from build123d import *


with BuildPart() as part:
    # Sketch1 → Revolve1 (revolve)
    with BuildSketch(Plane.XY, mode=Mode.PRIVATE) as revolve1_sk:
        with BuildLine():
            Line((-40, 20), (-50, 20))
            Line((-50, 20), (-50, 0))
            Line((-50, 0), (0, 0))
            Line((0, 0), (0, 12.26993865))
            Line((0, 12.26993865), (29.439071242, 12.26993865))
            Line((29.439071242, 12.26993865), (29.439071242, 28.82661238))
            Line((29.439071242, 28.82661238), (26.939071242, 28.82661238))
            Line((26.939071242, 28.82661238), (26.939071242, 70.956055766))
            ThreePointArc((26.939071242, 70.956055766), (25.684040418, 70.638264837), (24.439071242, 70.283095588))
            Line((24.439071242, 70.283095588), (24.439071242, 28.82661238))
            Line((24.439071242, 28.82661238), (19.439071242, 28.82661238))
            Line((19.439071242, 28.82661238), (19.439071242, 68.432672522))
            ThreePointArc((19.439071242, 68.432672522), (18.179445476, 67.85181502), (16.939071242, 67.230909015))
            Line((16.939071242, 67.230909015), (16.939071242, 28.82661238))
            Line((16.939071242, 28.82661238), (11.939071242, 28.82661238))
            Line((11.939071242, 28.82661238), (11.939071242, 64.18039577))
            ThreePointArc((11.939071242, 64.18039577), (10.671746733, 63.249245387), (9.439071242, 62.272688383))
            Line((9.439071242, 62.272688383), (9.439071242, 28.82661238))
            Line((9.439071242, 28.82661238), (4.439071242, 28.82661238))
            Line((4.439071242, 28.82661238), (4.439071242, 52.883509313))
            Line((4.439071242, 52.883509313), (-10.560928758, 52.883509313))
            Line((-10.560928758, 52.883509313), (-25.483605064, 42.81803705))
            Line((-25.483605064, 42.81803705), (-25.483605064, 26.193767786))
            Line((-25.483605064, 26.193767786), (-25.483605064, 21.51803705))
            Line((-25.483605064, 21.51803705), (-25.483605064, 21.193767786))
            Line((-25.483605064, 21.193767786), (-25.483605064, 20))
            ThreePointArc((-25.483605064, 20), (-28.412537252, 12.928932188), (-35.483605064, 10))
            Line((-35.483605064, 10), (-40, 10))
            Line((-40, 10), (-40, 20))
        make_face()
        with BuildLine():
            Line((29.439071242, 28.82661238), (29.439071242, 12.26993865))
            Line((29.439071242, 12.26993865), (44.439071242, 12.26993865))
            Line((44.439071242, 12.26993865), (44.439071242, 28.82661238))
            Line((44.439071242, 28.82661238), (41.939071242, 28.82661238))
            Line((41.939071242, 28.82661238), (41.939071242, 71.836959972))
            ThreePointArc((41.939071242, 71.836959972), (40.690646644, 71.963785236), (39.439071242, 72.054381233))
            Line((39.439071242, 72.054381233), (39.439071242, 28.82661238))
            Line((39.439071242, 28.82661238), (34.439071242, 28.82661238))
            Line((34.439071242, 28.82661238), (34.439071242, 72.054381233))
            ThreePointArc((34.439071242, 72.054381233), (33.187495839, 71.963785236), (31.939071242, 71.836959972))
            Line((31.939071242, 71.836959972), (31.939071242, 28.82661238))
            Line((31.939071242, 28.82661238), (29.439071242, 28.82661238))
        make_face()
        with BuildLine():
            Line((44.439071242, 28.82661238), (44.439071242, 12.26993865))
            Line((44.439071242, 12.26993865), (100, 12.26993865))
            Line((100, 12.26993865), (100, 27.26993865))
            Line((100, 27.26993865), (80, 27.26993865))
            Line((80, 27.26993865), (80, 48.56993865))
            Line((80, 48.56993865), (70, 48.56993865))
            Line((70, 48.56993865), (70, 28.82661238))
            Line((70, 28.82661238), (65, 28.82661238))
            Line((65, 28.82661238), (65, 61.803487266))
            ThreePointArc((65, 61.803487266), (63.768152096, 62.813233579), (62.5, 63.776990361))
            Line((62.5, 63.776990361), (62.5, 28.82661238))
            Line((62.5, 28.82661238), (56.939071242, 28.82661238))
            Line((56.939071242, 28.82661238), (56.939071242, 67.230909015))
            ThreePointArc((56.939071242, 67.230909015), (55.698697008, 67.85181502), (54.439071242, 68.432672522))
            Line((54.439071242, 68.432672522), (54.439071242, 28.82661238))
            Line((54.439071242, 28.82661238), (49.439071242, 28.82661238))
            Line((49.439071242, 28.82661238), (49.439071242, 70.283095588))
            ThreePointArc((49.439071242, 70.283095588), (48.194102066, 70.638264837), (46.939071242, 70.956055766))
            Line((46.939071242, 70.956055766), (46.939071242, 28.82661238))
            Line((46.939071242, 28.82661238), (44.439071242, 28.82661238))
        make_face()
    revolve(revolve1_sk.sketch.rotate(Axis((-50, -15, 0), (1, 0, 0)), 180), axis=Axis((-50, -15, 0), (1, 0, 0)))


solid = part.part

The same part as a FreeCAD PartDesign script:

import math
import FreeCAD as App
import Part
import Sketcher
from FreeCAD import Vector
Q = App.Units.Quantity

doc = App.newDocument("Part")
params = doc.addObject("Spreadsheet::Sheet", "Params")
for row, (alias, value) in enumerate([
    ("sketch1_radius", "10 mm"),
    ("sketch1_radius2", "43.3 mm"),
    ("sketch1_width", "50 mm"),
    ("sketch1_width2", "100 mm"),
    ("sketch1_width3", "20 mm"),
    ("revolution_angle", "360 deg"),
], start=1):
    params.set(f"A{row}", alias)
    params.set(f"B{row}", "=" + value)
    params.setAlias(f"B{row}", alias)

body = doc.addObject("PartDesign::Body", "Body")

sketch1 = body.newObject("Sketcher::SketchObject", "Sketch")
sketch1.AttachmentSupport = (doc.getObject("XY_Plane"), [""])
sketch1.MapMode = "FlatFace"
sketch1.addGeometry(Part.LineSegment(Vector(-40, 20, 0), Vector(-50, 20, 0)), False)
sketch1.addGeometry(Part.LineSegment(Vector(-50, 20, 0), Vector(-50, 0, 0)), False)
sketch1.addGeometry(Part.LineSegment(Vector(-50, 0, 0), Vector(0, 0, 0)), False)
sketch1.addGeometry(Part.LineSegment(Vector(0, 0, 0), Vector(0, 12.3, 0)), False)
sketch1.addGeometry(Part.LineSegment(Vector(0, 12.3, 0), Vector(100, 12.3, 0)), False)
sketch1.addGeometry(Part.LineSegment(Vector(100, 12.3, 0), Vector(100, 27.3, 0)), False)
sketch1.addGeometry(Part.LineSegment(Vector(100, 27.3, 0), Vector(80, 27.3, 0)), False)
sketch1.addGeometry(Part.LineSegment(Vector(80, 27.3, 0), Vector(80, 48.6, 0)), False)
sketch1.addGeometry(Part.LineSegment(Vector(80, 48.6, 0), Vector(70, 48.6, 0)), False)
sketch1.addGeometry(Part.LineSegment(Vector(70, 48.6, 0), Vector(70, 28.8, 0)), False)
sketch1.addGeometry(Part.LineSegment(Vector(70, 28.8, 0), Vector(65, 28.8, 0)), False)
sketch1.addGeometry(Part.LineSegment(Vector(65, 28.8, 0), Vector(65, 61.8, 0)), False)
sketch1.addGeometry(Part.ArcOfCircle(Part.Circle(Vector(36.9, 28.8, 0), Vector(0, 0, 1), 43.3), math.radians(49.6), math.radians(53.82)), False)
sketch1.addGeometry(Part.LineSegment(Vector(62.5, 63.8, 0), Vector(62.5, 28.8, 0)), False)
sketch1.addGeometry(Part.LineSegment(Vector(62.5, 28.8, 0), Vector(56.9, 28.8, 0)), False)
sketch1.addGeometry(Part.LineSegment(Vector(56.9, 28.8, 0), Vector(56.9, 67.2, 0)), False)
sketch1.addGeometry(Part.ArcOfCircle(Part.Circle(Vector(36.9, 28.8, 0), Vector(0, 0, 1), 43.3), math.radians(62.49), math.radians(66.16)), False)
sketch1.addGeometry(Part.LineSegment(Vector(54.4, 68.4, 0), Vector(54.4, 28.8, 0)), False)
sketch1.addGeometry(Part.LineSegment(Vector(54.4, 28.8, 0), Vector(49.4, 28.8, 0)), False)
sketch1.addGeometry(Part.LineSegment(Vector(49.4, 28.8, 0), Vector(49.4, 70.3, 0)), False)
sketch1.addGeometry(Part.ArcOfCircle(Part.Circle(Vector(36.9, 28.8, 0), Vector(0, 0, 1), 43.3), math.radians(73.22), math.radians(76.65)), False)
sketch1.addGeometry(Part.LineSegment(Vector(46.9, 71, 0), Vector(46.9, 28.8, 0)), False)
sketch1.addGeometry(Part.LineSegment(Vector(46.9, 28.8, 0), Vector(41.9, 28.8, 0)), False)
sketch1.addGeometry(Part.LineSegment(Vector(41.9, 28.8, 0), Vector(41.9, 71.8, 0)), False)
sketch1.addGeometry(Part.ArcOfCircle(Part.Circle(Vector(36.9, 28.8, 0), Vector(0, 0, 1), 43.3), math.radians(83.37), math.radians(86.69)), False)
sketch1.addGeometry(Part.LineSegment(Vector(39.4, 72.1, 0), Vector(39.4, 28.8, 0)), False)
sketch1.addGeometry(Part.LineSegment(Vector(39.4, 28.8, 0), Vector(34.4, 28.8, 0)), False)
sketch1.addGeometry(Part.LineSegment(Vector(34.4, 28.8, 0), Vector(34.4, 72.1, 0)), False)
sketch1.addGeometry(Part.ArcOfCircle(Part.Circle(Vector(36.9, 28.8, 0), Vector(0, 0, 1), 43.3), math.radians(93.31), math.radians(96.63)), False)
sketch1.addGeometry(Part.LineSegment(Vector(31.9, 71.8, 0), Vector(31.9, 28.8, 0)), False)
sketch1.addGeometry(Part.LineSegment(Vector(31.9, 28.8, 0), Vector(26.9, 28.8, 0)), False)
sketch1.addGeometry(Part.LineSegment(Vector(26.9, 28.8, 0), Vector(26.9, 71, 0)), False)
sketch1.addGeometry(Part.ArcOfCircle(Part.Circle(Vector(36.9, 28.8, 0), Vector(0, 0, 1), 43.3), math.radians(103.35), math.radians(106.78)), False)
sketch1.addGeometry(Part.LineSegment(Vector(24.4, 70.3, 0), Vector(24.4, 28.8, 0)), False)
sketch1.addGeometry(Part.LineSegment(Vector(24.4, 28.8, 0), Vector(19.4, 28.8, 0)), False)
sketch1.addGeometry(Part.LineSegment(Vector(19.4, 28.8, 0), Vector(19.4, 68.4, 0)), False)
sketch1.addGeometry(Part.ArcOfCircle(Part.Circle(Vector(36.9, 28.8, 0), Vector(0, 0, 1), 43.3), math.radians(113.84), math.radians(117.51)), False)
sketch1.addGeometry(Part.LineSegment(Vector(16.9, 67.2, 0), Vector(16.9, 28.8, 0)), False)
sketch1.addGeometry(Part.LineSegment(Vector(16.9, 28.8, 0), Vector(11.9, 28.8, 0)), False)
sketch1.addGeometry(Part.LineSegment(Vector(11.9, 28.8, 0), Vector(11.9, 64.2, 0)), False)
sketch1.addGeometry(Part.ArcOfCircle(Part.Circle(Vector(36.9, 28.8, 0), Vector(0, 0, 1), 43.3), math.radians(125.27), math.radians(129.43)), False)
sketch1.addGeometry(Part.LineSegment(Vector(9.4, 62.3, 0), Vector(9.4, 28.8, 0)), False)
sketch1.addGeometry(Part.LineSegment(Vector(9.4, 28.8, 0), Vector(4.4, 28.8, 0)), False)
sketch1.addGeometry(Part.LineSegment(Vector(4.4, 28.8, 0), Vector(4.4, 52.9, 0)), False)
sketch1.addGeometry(Part.LineSegment(Vector(4.4, 52.9, 0), Vector(-10.6, 52.9, 0)), False)
sketch1.addGeometry(Part.LineSegment(Vector(-10.6, 52.9, 0), Vector(-25.5, 42.8, 0)), False)
sketch1.addGeometry(Part.LineSegment(Vector(-25.5, 42.8, 0), Vector(-25.5, 20, 0)), False)
sketch1.addGeometry(Part.ArcOfCircle(Part.Circle(Vector(-35.5, 20, 0), Vector(0, 0, 1), 10), math.radians(-90), math.radians(0)), False)
sketch1.addGeometry(Part.LineSegment(Vector(-35.5, 10, 0), Vector(-40, 10, 0)), False)
sketch1.addGeometry(Part.LineSegment(Vector(-40, 10, 0), Vector(-40, 20, 0)), False)
sketch1.addGeometry(Part.LineSegment(Vector(-50, -15, 0), Vector(100, -15, 0)), True)
sketch1.addConstraint(Sketcher.Constraint("Coincident", 0, 2, 1, 1))
sketch1.addConstraint(Sketcher.Constraint("Coincident", 1, 2, 2, 1))
sketch1.addConstraint(Sketcher.Constraint("Coincident", 2, 2, 3, 1))
sketch1.addConstraint(Sketcher.Constraint("Coincident", 3, 2, 4, 1))
sketch1.addConstraint(Sketcher.Constraint("Coincident", 4, 2, 5, 1))
sketch1.addConstraint(Sketcher.Constraint("Coincident", 5, 2, 6, 1))
sketch1.addConstraint(Sketcher.Constraint("Coincident", 6, 2, 7, 1))
sketch1.addConstraint(Sketcher.Constraint("Coincident", 7, 2, 8, 1))
sketch1.addConstraint(Sketcher.Constraint("Coincident", 8, 2, 9, 1))
sketch1.addConstraint(Sketcher.Constraint("Coincident", 9, 2, 10, 1))
sketch1.addConstraint(Sketcher.Constraint("Coincident", 10, 2, 11, 1))
sketch1.addConstraint(Sketcher.Constraint("Coincident", 11, 2, 12, 1))
sketch1.addConstraint(Sketcher.Constraint("Coincident", 12, 2, 13, 1))
sketch1.addConstraint(Sketcher.Constraint("Coincident", 13, 2, 14, 1))
sketch1.addConstraint(Sketcher.Constraint("Coincident", 14, 2, 15, 1))
sketch1.addConstraint(Sketcher.Constraint("Coincident", 15, 2, 16, 1))
sketch1.addConstraint(Sketcher.Constraint("Coincident", 16, 2, 17, 1))
sketch1.addConstraint(Sketcher.Constraint("Coincident", 17, 2, 18, 1))
sketch1.addConstraint(Sketcher.Constraint("Coincident", 18, 2, 19, 1))
sketch1.addConstraint(Sketcher.Constraint("Coincident", 19, 2, 20, 1))
sketch1.addConstraint(Sketcher.Constraint("Coincident", 20, 2, 21, 1))
sketch1.addConstraint(Sketcher.Constraint("Coincident", 21, 2, 22, 1))
sketch1.addConstraint(Sketcher.Constraint("Coincident", 22, 2, 23, 1))
sketch1.addConstraint(Sketcher.Constraint("Coincident", 23, 2, 24, 1))
sketch1.addConstraint(Sketcher.Constraint("Coincident", 24, 2, 25, 1))
sketch1.addConstraint(Sketcher.Constraint("Coincident", 25, 2, 26, 1))
sketch1.addConstraint(Sketcher.Constraint("Coincident", 26, 2, 27, 1))
sketch1.addConstraint(Sketcher.Constraint("Coincident", 27, 2, 28, 1))
sketch1.addConstraint(Sketcher.Constraint("Coincident", 28, 2, 29, 1))
sketch1.addConstraint(Sketcher.Constraint("Coincident", 29, 2, 30, 1))
sketch1.addConstraint(Sketcher.Constraint("Coincident", 30, 2, 31, 1))
sketch1.addConstraint(Sketcher.Constraint("Coincident", 31, 2, 32, 1))
sketch1.addConstraint(Sketcher.Constraint("Coincident", 32, 2, 33, 1))
sketch1.addConstraint(Sketcher.Constraint("Coincident", 33, 2, 34, 1))
sketch1.addConstraint(Sketcher.Constraint("Coincident", 34, 2, 35, 1))
sketch1.addConstraint(Sketcher.Constraint("Coincident", 35, 2, 36, 1))
sketch1.addConstraint(Sketcher.Constraint("Coincident", 36, 2, 37, 1))
sketch1.addConstraint(Sketcher.Constraint("Coincident", 37, 2, 38, 1))
sketch1.addConstraint(Sketcher.Constraint("Coincident", 38, 2, 39, 1))
sketch1.addConstraint(Sketcher.Constraint("Coincident", 39, 2, 40, 1))
sketch1.addConstraint(Sketcher.Constraint("Coincident", 40, 2, 41, 1))
sketch1.addConstraint(Sketcher.Constraint("Coincident", 41, 2, 42, 1))
sketch1.addConstraint(Sketcher.Constraint("Coincident", 42, 2, 43, 1))
sketch1.addConstraint(Sketcher.Constraint("Coincident", 43, 2, 44, 1))
sketch1.addConstraint(Sketcher.Constraint("Coincident", 44, 2, 45, 1))
sketch1.addConstraint(Sketcher.Constraint("Coincident", 45, 2, 46, 1))
sketch1.addConstraint(Sketcher.Constraint("Tangent", 46, 2, 47, 2))
sketch1.addConstraint(Sketcher.Constraint("Tangent", 47, 1, 48, 1))
sketch1.addConstraint(Sketcher.Constraint("Coincident", 48, 2, 49, 1))
sketch1.addConstraint(Sketcher.Constraint("Coincident", 49, 2, 0, 1))
sketch1.addConstraint(Sketcher.Constraint("Horizontal", 0))
sketch1.addConstraint(Sketcher.Constraint("Vertical", 1))
sketch1.addConstraint(Sketcher.Constraint("Horizontal", 2))
sketch1.addConstraint(Sketcher.Constraint("Vertical", 3))
sketch1.addConstraint(Sketcher.Constraint("Horizontal", 4))
sketch1.addConstraint(Sketcher.Constraint("Vertical", 5))
sketch1.addConstraint(Sketcher.Constraint("Horizontal", 6))
sketch1.addConstraint(Sketcher.Constraint("Vertical", 7))
sketch1.addConstraint(Sketcher.Constraint("Horizontal", 8))
sketch1.addConstraint(Sketcher.Constraint("Vertical", 9))
sketch1.addConstraint(Sketcher.Constraint("Horizontal", 10))
sketch1.addConstraint(Sketcher.Constraint("Vertical", 11))
sketch1.addConstraint(Sketcher.Constraint("Vertical", 13))
sketch1.addConstraint(Sketcher.Constraint("Horizontal", 14))
sketch1.addConstraint(Sketcher.Constraint("Vertical", 15))
sketch1.addConstraint(Sketcher.Constraint("Vertical", 17))
sketch1.addConstraint(Sketcher.Constraint("Horizontal", 18))
sketch1.addConstraint(Sketcher.Constraint("Vertical", 19))
sketch1.addConstraint(Sketcher.Constraint("Vertical", 21))
sketch1.addConstraint(Sketcher.Constraint("Horizontal", 22))
sketch1.addConstraint(Sketcher.Constraint("Vertical", 23))
sketch1.addConstraint(Sketcher.Constraint("Vertical", 25))
sketch1.addConstraint(Sketcher.Constraint("Horizontal", 26))
sketch1.addConstraint(Sketcher.Constraint("Vertical", 27))
sketch1.addConstraint(Sketcher.Constraint("Vertical", 29))
sketch1.addConstraint(Sketcher.Constraint("Horizontal", 30))
sketch1.addConstraint(Sketcher.Constraint("Vertical", 31))
sketch1.addConstraint(Sketcher.Constraint("Vertical", 33))
sketch1.addConstraint(Sketcher.Constraint("Horizontal", 34))
sketch1.addConstraint(Sketcher.Constraint("Vertical", 35))
sketch1.addConstraint(Sketcher.Constraint("Vertical", 37))
sketch1.addConstraint(Sketcher.Constraint("Horizontal", 38))
sketch1.addConstraint(Sketcher.Constraint("Vertical", 39))
sketch1.addConstraint(Sketcher.Constraint("Vertical", 41))
sketch1.addConstraint(Sketcher.Constraint("Horizontal", 42))
sketch1.addConstraint(Sketcher.Constraint("Vertical", 43))
sketch1.addConstraint(Sketcher.Constraint("Horizontal", 44))
sketch1.addConstraint(Sketcher.Constraint("Vertical", 46))
sketch1.addConstraint(Sketcher.Constraint("Horizontal", 48))
sketch1.addConstraint(Sketcher.Constraint("Vertical", 49))
sketch1.addConstraint(Sketcher.Constraint("Horizontal", 50))
sketch1.addConstraint(Sketcher.Constraint("Coincident", 2, 2, -1, 1))
sketch1.addConstraint(Sketcher.Constraint("Coincident", 16, 3, 12, 3))
sketch1.addConstraint(Sketcher.Constraint("Coincident", 20, 3, 12, 3))
sketch1.addConstraint(Sketcher.Constraint("Coincident", 24, 3, 12, 3))
sketch1.addConstraint(Sketcher.Constraint("Coincident", 28, 3, 12, 3))
sketch1.addConstraint(Sketcher.Constraint("Coincident", 32, 3, 12, 3))
sketch1.addConstraint(Sketcher.Constraint("Coincident", 36, 3, 12, 3))
sketch1.addConstraint(Sketcher.Constraint("Coincident", 40, 3, 12, 3))
sketch1.addConstraint(Sketcher.Constraint("Equal", 12, 16))
sketch1.addConstraint(Sketcher.Constraint("Equal", 16, 20))
sketch1.addConstraint(Sketcher.Constraint("Equal", 20, 24))
sketch1.addConstraint(Sketcher.Constraint("Equal", 24, 28))
sketch1.addConstraint(Sketcher.Constraint("Equal", 28, 32))
sketch1.addConstraint(Sketcher.Constraint("Equal", 32, 36))
sketch1.addConstraint(Sketcher.Constraint("Equal", 36, 40))
sketch1.addConstraint(Sketcher.Constraint("Horizontal", 47, 3, 0, 2))
sketch1.addConstraint(Sketcher.Constraint("Horizontal", 40, 3, 9, 2))
sketch1.addConstraint(Sketcher.Constraint("Horizontal", 10, 2, 13, 2))
sketch1.addConstraint(Sketcher.Constraint("Horizontal", 14, 2, 17, 2))
sketch1.addConstraint(Sketcher.Constraint("Horizontal", 18, 2, 21, 2))
sketch1.addConstraint(Sketcher.Constraint("Horizontal", 22, 2, 25, 2))
sketch1.addConstraint(Sketcher.Constraint("Horizontal", 24, 2, 27, 2))
sketch1.addConstraint(Sketcher.Constraint("Horizontal", 23, 2, 28, 2))
sketch1.addConstraint(Sketcher.Constraint("Horizontal", 26, 2, 29, 2))
sketch1.addConstraint(Sketcher.Constraint("Horizontal", 20, 2, 31, 2))
sketch1.addConstraint(Sketcher.Constraint("Horizontal", 19, 2, 32, 2))
sketch1.addConstraint(Sketcher.Constraint("Horizontal", 30, 2, 33, 2))
sketch1.addConstraint(Sketcher.Constraint("Horizontal", 16, 2, 35, 2))
sketch1.addConstraint(Sketcher.Constraint("Horizontal", 15, 2, 36, 2))
sketch1.addConstraint(Sketcher.Constraint("Horizontal", 34, 2, 37, 2))
sketch1.addConstraint(Sketcher.Constraint("Horizontal", 38, 2, 41, 2))
sketch1.addConstraint(Sketcher.Constraint("Vertical", 1, 2, 50, 1))
sketch1.addConstraint(Sketcher.Constraint("Vertical", 5, 2, 50, 2))
sketch1.addConstraint(Sketcher.Constraint("Equal", 0, 8))
sketch1.addConstraint(Sketcher.Constraint("Equal", 10, 18))
sketch1.addConstraint(Sketcher.Constraint("Equal", 18, 22))
sketch1.addConstraint(Sketcher.Constraint("Equal", 22, 26))
sketch1.addConstraint(Sketcher.Constraint("Equal", 34, 38))
sketch1.addConstraint(Sketcher.Constraint("Equal", 38, 42))
sketch1.addConstraint(Sketcher.Constraint("Equal", 6, 1))
sketch1.addConstraint(Sketcher.Constraint("Equal", 44, 5))
sketch1.addConstraint(Sketcher.Constraint("Equal", 8, 49))
sketch1.addConstraint(Sketcher.Constraint("Radius", 47, 10.0))
sketch1.addConstraint(Sketcher.Constraint("Radius", 12, 43.3))
sketch1.addConstraint(Sketcher.Constraint("DistanceX", 2, 1, 2, 2, 50.0))
sketch1.addConstraint(Sketcher.Constraint("DistanceX", 4, 1, 4, 2, 100.0))
sketch1.addConstraint(Sketcher.Constraint("DistanceX", 6, 2, 6, 1, 20.0))
sketch1.addConstraint(Sketcher.Constraint("DistanceX", 10, 2, 10, 1, 5.0))
sketch1.addConstraint(Sketcher.Constraint("DistanceX", 44, 2, 44, 1, 15.0))
sketch1.addConstraint(Sketcher.Constraint("Angle", 45, Q("-146 deg")))
sketch1.addConstraint(Sketcher.Constraint("Distance", 45, 18.0))
sketch1.addConstraint(Sketcher.Constraint("DistanceY", 7, 1, 7, 2, 21.3))
sketch1.addConstraint(Sketcher.Constraint("DistanceY", 50, 1, -1, 1, 15.0))
sketch1.addConstraint(Sketcher.Constraint("DistanceX", -1, 1, 12, 2, 62.5))
sketch1.addConstraint(Sketcher.Constraint("DistanceX", 14, 2, 14, 1, 5.560929))
sketch1.addConstraint(Sketcher.Constraint("DistanceY", 3, 1, 3, 2, 12.269939))
sketch1.addConstraint(Sketcher.Constraint("DistanceY", 17, 2, 17, 1, 39.60606))
sketch1.addConstraint(Sketcher.Constraint("DistanceX", 48, 2, 48, 1, 4.516395))
sketch1.addConstraint(Sketcher.Constraint("DistanceY", 9, 2, 9, 1, 19.743326))
sketch1.addConstraint(Sketcher.Constraint("DistanceY", 11, 1, 11, 2, 32.976875))
sketch1.addConstraint(Sketcher.Constraint("DistanceY", 21, 2, 21, 1, 42.129443))
sketch1.addConstraint(Sketcher.Constraint("DistanceY", 43, 1, 43, 2, 24.056897))
sketch1.setExpression("Constraints[133]", "Params.sketch1_radius")
sketch1.setExpression("Constraints[134]", "Params.sketch1_radius2")
sketch1.setExpression("Constraints[135]", "Params.sketch1_width")
sketch1.setExpression("Constraints[136]", "Params.sketch1_width2")
sketch1.setExpression("Constraints[137]", "Params.sketch1_width3")
revolution = body.newObject("PartDesign::Revolution", "Revolution")
revolution.Profile = sketch1
revolution.ReferenceAxis = (sketch1, ["Axis0"])
revolution.setExpression("Angle", "Params.revolution_angle")

doc.recompute()
